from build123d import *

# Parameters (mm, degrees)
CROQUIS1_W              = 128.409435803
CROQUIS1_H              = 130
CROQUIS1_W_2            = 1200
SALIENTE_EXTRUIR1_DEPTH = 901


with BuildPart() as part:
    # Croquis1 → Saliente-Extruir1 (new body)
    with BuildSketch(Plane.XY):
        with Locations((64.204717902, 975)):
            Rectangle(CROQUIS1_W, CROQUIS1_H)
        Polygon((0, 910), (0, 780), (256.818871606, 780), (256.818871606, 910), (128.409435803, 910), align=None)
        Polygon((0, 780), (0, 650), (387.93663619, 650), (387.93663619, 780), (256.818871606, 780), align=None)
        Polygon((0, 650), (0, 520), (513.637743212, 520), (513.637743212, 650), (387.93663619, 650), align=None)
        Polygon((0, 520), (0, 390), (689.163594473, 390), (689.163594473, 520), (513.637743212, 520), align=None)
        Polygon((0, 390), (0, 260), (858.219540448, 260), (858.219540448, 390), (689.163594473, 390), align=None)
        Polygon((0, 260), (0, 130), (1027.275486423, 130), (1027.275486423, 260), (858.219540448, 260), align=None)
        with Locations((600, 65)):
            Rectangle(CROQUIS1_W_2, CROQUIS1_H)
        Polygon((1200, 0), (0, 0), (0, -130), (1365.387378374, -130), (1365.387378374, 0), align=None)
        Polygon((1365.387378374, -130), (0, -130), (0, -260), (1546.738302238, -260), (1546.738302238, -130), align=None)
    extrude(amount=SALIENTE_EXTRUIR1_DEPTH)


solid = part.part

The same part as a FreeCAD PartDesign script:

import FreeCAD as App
import Part
import Sketcher

doc = App.newDocument("Part")
body = doc.addObject("PartDesign::Body", "Body")

# Sketch on XY plane
sketch1 = body.newObject("Sketcher::SketchObject", "Sketch")
sketch1.AttachmentSupport = (doc.getObject("XY_Plane"), [""])
sketch1.MapMode = "FlatFace"
sketch1.addGeometry(Part.LineSegment(App.Vector(0, 1040, 0), App.Vector(0, 780, 0)), False)
sketch1.addGeometry(Part.LineSegment(App.Vector(0, 780, 0), App.Vector(0, -260, 0)), False)
sketch1.addGeometry(Part.LineSegment(App.Vector(0, -260, 0), App.Vector(1547, -260, 0)), False)
sketch1.addGeometry(Part.LineSegment(App.Vector(1547, -260, 0), App.Vector(1547, -130, 0)), False)
sketch1.addGeometry(Part.LineSegment(App.Vector(1547, -130, 0), App.Vector(1365, -130, 0)), False)
sketch1.addGeometry(Part.LineSegment(App.Vector(1365, -130, 0), App.Vector(1365, 0, 0)), False)
sketch1.addGeometry(Part.LineSegment(App.Vector(1365, 0, 0), App.Vector(1200, 0, 0)), False)
sketch1.addGeometry(Part.LineSegment(App.Vector(1200, 0, 0), App.Vector(1200, 130, 0)), False)
sketch1.addGeometry(Part.LineSegment(App.Vector(1200, 130, 0), App.Vector(1027, 130, 0)), False)
sketch1.addGeometry(Part.LineSegment(App.Vector(1027, 130, 0), App.Vector(1027, 260, 0)), False)
sketch1.addGeometry(Part.LineSegment(App.Vector(1027, 260, 0), App.Vector(858, 260, 0)), False)
sketch1.addGeometry(Part.LineSegment(App.Vector(858, 260, 0), App.Vector(858, 390, 0)), False)
sketch1.addGeometry(Part.LineSegment(App.Vector(858, 390, 0), App.Vector(689, 390, 0)), False)
sketch1.addGeometry(Part.LineSegment(App.Vector(689, 390, 0), App.Vector(689, 520, 0)), False)
sketch1.addGeometry(Part.LineSegment(App.Vector(689, 520, 0), App.Vector(514, 520, 0)), False)
sketch1.addGeometry(Part.LineSegment(App.Vector(514, 520, 0), App.Vector(514, 650, 0)), False)
sketch1.addGeometry(Part.LineSegment(App.Vector(514, 650, 0), App.Vector(388, 650, 0)), False)
sketch1.addGeometry(Part.LineSegment(App.Vector(388, 650, 0), App.Vector(388, 780, 0)), False)
sketch1.addGeometry(Part.LineSegment(App.Vector(388, 780, 0), App.Vector(257, 780, 0)), False)
sketch1.addGeometry(Part.LineSegment(App.Vector(257, 780, 0), App.Vector(257, 910, 0)), False)
sketch1.addGeometry(Part.LineSegment(App.Vector(257, 910, 0), App.Vector(128, 910, 0)), False)
sketch1.addGeometry(Part.LineSegment(App.Vector(128, 910, 0), App.Vector(128, 1040, 0)), False)
sketch1.addGeometry(Part.LineSegment(App.Vector(128, 1040, 0), App.Vector(0, 1040, 0)), False)
sketch1.addConstraint(Sketcher.Constraint("Coincident", 0, 2, 1, 1))
sketch1.addConstraint(Sketcher.Constraint("Coincident", 1, 2, 2, 1))
sketch1.addConstraint(Sketcher.Constraint("Coincident", 2, 2, 3, 1))
sketch1.addConstraint(Sketcher.Constraint("Coincident", 3, 2, 4, 1))
sketch1.addConstraint(Sketcher.Constraint("Coincident", 4, 2, 5, 1))
sketch1.addConstraint(Sketcher.Constraint("Coincident", 5, 2, 6, 1))
sketch1.addConstraint(Sketcher.Constraint("Coincident", 6, 2, 7, 1))
sketch1.addConstraint(Sketcher.Constraint("Coincident", 7, 2, 8, 1))
sketch1.addConstraint(Sketcher.Constraint("Coincident", 8, 2, 9, 1))
sketch1.addConstraint(Sketcher.Constraint("Coincident", 9, 2, 10, 1))
sketch1.addConstraint(Sketcher.Constraint("Coincident", 10, 2, 11, 1))
sketch1.addConstraint(Sketcher.Constraint("Coincident", 11, 2, 12, 1))
sketch1.addConstraint(Sketcher.Constraint("Coincident", 12, 2, 13, 1))
sketch1.addConstraint(Sketcher.Constraint("Coincident", 13, 2, 14, 1))
sketch1.addConstraint(Sketcher.Constraint("Coincident", 14, 2, 15, 1))
sketch1.addConstraint(Sketcher.Constraint("Coincident", 15, 2, 16, 1))
sketch1.addConstraint(Sketcher.Constraint("Coincident", 16, 2, 17, 1))
sketch1.addConstraint(Sketcher.Constraint("Coincident", 17, 2, 18, 1))
sketch1.addConstraint(Sketcher.Constraint("Coincident", 18, 2, 19, 1))
sketch1.addConstraint(Sketcher.Constraint("Coincident", 19, 2, 20, 1))
sketch1.addConstraint(Sketcher.Constraint("Coincident", 20, 2, 21, 1))
sketch1.addConstraint(Sketcher.Constraint("Coincident", 21, 2, 22, 1))
sketch1.addConstraint(Sketcher.Constraint("Coincident", 22, 2, 0, 1))
sketch1.addConstraint(Sketcher.Constraint("Vertical", 0))
sketch1.addConstraint(Sketcher.Constraint("Vertical", 1))
sketch1.addConstraint(Sketcher.Constraint("Horizontal", 2))
sketch1.addConstraint(Sketcher.Constraint("Vertical", 3))
sketch1.addConstraint(Sketcher.Constraint("Horizontal", 4))
sketch1.addConstraint(Sketcher.Constraint("Vertical", 5))
sketch1.addConstraint(Sketcher.Constraint("Horizontal", 6))
sketch1.addConstraint(Sketcher.Constraint("Vertical", 7))
sketch1.addConstraint(Sketcher.Constraint("Horizontal", 8))
sketch1.addConstraint(Sketcher.Constraint("Vertical", 9))
sketch1.addConstraint(Sketcher.Constraint("Horizontal", 10))
sketch1.addConstraint(Sketcher.Constraint("Vertical", 11))
sketch1.addConstraint(Sketcher.Constraint("Horizontal", 12))
sketch1.addConstraint(Sketcher.Constraint("Vertical", 13))
sketch1.addConstraint(Sketcher.Constraint("Horizontal", 14))
sketch1.addConstraint(Sketcher.Constraint("Vertical", 15))
sketch1.addConstraint(Sketcher.Constraint("Horizontal", 16))
sketch1.addConstraint(Sketcher.Constraint("Vertical", 17))
sketch1.addConstraint(Sketcher.Constraint("Horizontal", 18))
sketch1.addConstraint(Sketcher.Constraint("Vertical", 19))
sketch1.addConstraint(Sketcher.Constraint("Horizontal", 20))
sketch1.addConstraint(Sketcher.Constraint("Vertical", 21))
sketch1.addConstraint(Sketcher.Constraint("Horizontal", 22))
sketch1.addConstraint(Sketcher.Constraint("PointOnObject", 0, 2, -2))
sketch1.addConstraint(Sketcher.Constraint("PointOnObject", 5, 2, -1))
sketch1.addConstraint(Sketcher.Constraint("Horizontal", 0, 2, 17, 2))
sketch1.addConstraint(Sketcher.Constraint("Equal", 10, 12))
sketch1.addConstraint(Sketcher.Constraint("Equal", 20, 22))
sketch1.addConstraint(Sketcher.Constraint("Equal", 3, 5))
sketch1.addConstraint(Sketcher.Constraint("Equal", 5, 7))
sketch1.addConstraint(Sketcher.Constraint("Equal", 7, 9))
sketch1.addConstraint(Sketcher.Constraint("Equal", 9, 11))
sketch1.addConstraint(Sketcher.Constraint("Equal", 11, 13))
sketch1.addConstraint(Sketcher.Constraint("Equal", 13, 15))
sketch1.addConstraint(Sketcher.Constraint("Equal", 15, 17))
sketch1.addConstraint(Sketcher.Constraint("Equal", 17, 19))
sketch1.addConstraint(Sketcher.Constraint("Equal", 19, 21))
sketch1.addConstraint(Sketcher.Constraint("DistanceY", 0, 2, 0, 1, 260.0))
sketch1.addConstraint(Sketcher.Constraint("DistanceX", -1, 1, 6, 2, 1200.0))
sketch1.addConstraint(Sketcher.Constraint("DistanceX", 6, 2, 6, 1, 165.387378))
sketch1.addConstraint(Sketcher.Constraint("DistanceX", 14, 2, 14, 1, 175.525851))
sketch1.addConstraint(Sketcher.Constraint("DistanceX", 20, 2, 17, 2, 259.5272))
sketch1.addConstraint(Sketcher.Constraint("DistanceX", 2, 1, 2, 2, 1546.738302))
sketch1.addConstraint(Sketcher.Constraint("DistanceX", 8, 2, 8, 1, 172.724514))
sketch1.addConstraint(Sketcher.Constraint("DistanceX", 10, 2, 10, 1, 169.055946))
sketch1.addConstraint(Sketcher.Constraint("DistanceX", 16, 2, 16, 1, 125.701107))
pad1 = body.newObject("PartDesign::Pad", "Pad")
pad1.Profile = sketch1
pad1.Length = 901

doc.recompute()
